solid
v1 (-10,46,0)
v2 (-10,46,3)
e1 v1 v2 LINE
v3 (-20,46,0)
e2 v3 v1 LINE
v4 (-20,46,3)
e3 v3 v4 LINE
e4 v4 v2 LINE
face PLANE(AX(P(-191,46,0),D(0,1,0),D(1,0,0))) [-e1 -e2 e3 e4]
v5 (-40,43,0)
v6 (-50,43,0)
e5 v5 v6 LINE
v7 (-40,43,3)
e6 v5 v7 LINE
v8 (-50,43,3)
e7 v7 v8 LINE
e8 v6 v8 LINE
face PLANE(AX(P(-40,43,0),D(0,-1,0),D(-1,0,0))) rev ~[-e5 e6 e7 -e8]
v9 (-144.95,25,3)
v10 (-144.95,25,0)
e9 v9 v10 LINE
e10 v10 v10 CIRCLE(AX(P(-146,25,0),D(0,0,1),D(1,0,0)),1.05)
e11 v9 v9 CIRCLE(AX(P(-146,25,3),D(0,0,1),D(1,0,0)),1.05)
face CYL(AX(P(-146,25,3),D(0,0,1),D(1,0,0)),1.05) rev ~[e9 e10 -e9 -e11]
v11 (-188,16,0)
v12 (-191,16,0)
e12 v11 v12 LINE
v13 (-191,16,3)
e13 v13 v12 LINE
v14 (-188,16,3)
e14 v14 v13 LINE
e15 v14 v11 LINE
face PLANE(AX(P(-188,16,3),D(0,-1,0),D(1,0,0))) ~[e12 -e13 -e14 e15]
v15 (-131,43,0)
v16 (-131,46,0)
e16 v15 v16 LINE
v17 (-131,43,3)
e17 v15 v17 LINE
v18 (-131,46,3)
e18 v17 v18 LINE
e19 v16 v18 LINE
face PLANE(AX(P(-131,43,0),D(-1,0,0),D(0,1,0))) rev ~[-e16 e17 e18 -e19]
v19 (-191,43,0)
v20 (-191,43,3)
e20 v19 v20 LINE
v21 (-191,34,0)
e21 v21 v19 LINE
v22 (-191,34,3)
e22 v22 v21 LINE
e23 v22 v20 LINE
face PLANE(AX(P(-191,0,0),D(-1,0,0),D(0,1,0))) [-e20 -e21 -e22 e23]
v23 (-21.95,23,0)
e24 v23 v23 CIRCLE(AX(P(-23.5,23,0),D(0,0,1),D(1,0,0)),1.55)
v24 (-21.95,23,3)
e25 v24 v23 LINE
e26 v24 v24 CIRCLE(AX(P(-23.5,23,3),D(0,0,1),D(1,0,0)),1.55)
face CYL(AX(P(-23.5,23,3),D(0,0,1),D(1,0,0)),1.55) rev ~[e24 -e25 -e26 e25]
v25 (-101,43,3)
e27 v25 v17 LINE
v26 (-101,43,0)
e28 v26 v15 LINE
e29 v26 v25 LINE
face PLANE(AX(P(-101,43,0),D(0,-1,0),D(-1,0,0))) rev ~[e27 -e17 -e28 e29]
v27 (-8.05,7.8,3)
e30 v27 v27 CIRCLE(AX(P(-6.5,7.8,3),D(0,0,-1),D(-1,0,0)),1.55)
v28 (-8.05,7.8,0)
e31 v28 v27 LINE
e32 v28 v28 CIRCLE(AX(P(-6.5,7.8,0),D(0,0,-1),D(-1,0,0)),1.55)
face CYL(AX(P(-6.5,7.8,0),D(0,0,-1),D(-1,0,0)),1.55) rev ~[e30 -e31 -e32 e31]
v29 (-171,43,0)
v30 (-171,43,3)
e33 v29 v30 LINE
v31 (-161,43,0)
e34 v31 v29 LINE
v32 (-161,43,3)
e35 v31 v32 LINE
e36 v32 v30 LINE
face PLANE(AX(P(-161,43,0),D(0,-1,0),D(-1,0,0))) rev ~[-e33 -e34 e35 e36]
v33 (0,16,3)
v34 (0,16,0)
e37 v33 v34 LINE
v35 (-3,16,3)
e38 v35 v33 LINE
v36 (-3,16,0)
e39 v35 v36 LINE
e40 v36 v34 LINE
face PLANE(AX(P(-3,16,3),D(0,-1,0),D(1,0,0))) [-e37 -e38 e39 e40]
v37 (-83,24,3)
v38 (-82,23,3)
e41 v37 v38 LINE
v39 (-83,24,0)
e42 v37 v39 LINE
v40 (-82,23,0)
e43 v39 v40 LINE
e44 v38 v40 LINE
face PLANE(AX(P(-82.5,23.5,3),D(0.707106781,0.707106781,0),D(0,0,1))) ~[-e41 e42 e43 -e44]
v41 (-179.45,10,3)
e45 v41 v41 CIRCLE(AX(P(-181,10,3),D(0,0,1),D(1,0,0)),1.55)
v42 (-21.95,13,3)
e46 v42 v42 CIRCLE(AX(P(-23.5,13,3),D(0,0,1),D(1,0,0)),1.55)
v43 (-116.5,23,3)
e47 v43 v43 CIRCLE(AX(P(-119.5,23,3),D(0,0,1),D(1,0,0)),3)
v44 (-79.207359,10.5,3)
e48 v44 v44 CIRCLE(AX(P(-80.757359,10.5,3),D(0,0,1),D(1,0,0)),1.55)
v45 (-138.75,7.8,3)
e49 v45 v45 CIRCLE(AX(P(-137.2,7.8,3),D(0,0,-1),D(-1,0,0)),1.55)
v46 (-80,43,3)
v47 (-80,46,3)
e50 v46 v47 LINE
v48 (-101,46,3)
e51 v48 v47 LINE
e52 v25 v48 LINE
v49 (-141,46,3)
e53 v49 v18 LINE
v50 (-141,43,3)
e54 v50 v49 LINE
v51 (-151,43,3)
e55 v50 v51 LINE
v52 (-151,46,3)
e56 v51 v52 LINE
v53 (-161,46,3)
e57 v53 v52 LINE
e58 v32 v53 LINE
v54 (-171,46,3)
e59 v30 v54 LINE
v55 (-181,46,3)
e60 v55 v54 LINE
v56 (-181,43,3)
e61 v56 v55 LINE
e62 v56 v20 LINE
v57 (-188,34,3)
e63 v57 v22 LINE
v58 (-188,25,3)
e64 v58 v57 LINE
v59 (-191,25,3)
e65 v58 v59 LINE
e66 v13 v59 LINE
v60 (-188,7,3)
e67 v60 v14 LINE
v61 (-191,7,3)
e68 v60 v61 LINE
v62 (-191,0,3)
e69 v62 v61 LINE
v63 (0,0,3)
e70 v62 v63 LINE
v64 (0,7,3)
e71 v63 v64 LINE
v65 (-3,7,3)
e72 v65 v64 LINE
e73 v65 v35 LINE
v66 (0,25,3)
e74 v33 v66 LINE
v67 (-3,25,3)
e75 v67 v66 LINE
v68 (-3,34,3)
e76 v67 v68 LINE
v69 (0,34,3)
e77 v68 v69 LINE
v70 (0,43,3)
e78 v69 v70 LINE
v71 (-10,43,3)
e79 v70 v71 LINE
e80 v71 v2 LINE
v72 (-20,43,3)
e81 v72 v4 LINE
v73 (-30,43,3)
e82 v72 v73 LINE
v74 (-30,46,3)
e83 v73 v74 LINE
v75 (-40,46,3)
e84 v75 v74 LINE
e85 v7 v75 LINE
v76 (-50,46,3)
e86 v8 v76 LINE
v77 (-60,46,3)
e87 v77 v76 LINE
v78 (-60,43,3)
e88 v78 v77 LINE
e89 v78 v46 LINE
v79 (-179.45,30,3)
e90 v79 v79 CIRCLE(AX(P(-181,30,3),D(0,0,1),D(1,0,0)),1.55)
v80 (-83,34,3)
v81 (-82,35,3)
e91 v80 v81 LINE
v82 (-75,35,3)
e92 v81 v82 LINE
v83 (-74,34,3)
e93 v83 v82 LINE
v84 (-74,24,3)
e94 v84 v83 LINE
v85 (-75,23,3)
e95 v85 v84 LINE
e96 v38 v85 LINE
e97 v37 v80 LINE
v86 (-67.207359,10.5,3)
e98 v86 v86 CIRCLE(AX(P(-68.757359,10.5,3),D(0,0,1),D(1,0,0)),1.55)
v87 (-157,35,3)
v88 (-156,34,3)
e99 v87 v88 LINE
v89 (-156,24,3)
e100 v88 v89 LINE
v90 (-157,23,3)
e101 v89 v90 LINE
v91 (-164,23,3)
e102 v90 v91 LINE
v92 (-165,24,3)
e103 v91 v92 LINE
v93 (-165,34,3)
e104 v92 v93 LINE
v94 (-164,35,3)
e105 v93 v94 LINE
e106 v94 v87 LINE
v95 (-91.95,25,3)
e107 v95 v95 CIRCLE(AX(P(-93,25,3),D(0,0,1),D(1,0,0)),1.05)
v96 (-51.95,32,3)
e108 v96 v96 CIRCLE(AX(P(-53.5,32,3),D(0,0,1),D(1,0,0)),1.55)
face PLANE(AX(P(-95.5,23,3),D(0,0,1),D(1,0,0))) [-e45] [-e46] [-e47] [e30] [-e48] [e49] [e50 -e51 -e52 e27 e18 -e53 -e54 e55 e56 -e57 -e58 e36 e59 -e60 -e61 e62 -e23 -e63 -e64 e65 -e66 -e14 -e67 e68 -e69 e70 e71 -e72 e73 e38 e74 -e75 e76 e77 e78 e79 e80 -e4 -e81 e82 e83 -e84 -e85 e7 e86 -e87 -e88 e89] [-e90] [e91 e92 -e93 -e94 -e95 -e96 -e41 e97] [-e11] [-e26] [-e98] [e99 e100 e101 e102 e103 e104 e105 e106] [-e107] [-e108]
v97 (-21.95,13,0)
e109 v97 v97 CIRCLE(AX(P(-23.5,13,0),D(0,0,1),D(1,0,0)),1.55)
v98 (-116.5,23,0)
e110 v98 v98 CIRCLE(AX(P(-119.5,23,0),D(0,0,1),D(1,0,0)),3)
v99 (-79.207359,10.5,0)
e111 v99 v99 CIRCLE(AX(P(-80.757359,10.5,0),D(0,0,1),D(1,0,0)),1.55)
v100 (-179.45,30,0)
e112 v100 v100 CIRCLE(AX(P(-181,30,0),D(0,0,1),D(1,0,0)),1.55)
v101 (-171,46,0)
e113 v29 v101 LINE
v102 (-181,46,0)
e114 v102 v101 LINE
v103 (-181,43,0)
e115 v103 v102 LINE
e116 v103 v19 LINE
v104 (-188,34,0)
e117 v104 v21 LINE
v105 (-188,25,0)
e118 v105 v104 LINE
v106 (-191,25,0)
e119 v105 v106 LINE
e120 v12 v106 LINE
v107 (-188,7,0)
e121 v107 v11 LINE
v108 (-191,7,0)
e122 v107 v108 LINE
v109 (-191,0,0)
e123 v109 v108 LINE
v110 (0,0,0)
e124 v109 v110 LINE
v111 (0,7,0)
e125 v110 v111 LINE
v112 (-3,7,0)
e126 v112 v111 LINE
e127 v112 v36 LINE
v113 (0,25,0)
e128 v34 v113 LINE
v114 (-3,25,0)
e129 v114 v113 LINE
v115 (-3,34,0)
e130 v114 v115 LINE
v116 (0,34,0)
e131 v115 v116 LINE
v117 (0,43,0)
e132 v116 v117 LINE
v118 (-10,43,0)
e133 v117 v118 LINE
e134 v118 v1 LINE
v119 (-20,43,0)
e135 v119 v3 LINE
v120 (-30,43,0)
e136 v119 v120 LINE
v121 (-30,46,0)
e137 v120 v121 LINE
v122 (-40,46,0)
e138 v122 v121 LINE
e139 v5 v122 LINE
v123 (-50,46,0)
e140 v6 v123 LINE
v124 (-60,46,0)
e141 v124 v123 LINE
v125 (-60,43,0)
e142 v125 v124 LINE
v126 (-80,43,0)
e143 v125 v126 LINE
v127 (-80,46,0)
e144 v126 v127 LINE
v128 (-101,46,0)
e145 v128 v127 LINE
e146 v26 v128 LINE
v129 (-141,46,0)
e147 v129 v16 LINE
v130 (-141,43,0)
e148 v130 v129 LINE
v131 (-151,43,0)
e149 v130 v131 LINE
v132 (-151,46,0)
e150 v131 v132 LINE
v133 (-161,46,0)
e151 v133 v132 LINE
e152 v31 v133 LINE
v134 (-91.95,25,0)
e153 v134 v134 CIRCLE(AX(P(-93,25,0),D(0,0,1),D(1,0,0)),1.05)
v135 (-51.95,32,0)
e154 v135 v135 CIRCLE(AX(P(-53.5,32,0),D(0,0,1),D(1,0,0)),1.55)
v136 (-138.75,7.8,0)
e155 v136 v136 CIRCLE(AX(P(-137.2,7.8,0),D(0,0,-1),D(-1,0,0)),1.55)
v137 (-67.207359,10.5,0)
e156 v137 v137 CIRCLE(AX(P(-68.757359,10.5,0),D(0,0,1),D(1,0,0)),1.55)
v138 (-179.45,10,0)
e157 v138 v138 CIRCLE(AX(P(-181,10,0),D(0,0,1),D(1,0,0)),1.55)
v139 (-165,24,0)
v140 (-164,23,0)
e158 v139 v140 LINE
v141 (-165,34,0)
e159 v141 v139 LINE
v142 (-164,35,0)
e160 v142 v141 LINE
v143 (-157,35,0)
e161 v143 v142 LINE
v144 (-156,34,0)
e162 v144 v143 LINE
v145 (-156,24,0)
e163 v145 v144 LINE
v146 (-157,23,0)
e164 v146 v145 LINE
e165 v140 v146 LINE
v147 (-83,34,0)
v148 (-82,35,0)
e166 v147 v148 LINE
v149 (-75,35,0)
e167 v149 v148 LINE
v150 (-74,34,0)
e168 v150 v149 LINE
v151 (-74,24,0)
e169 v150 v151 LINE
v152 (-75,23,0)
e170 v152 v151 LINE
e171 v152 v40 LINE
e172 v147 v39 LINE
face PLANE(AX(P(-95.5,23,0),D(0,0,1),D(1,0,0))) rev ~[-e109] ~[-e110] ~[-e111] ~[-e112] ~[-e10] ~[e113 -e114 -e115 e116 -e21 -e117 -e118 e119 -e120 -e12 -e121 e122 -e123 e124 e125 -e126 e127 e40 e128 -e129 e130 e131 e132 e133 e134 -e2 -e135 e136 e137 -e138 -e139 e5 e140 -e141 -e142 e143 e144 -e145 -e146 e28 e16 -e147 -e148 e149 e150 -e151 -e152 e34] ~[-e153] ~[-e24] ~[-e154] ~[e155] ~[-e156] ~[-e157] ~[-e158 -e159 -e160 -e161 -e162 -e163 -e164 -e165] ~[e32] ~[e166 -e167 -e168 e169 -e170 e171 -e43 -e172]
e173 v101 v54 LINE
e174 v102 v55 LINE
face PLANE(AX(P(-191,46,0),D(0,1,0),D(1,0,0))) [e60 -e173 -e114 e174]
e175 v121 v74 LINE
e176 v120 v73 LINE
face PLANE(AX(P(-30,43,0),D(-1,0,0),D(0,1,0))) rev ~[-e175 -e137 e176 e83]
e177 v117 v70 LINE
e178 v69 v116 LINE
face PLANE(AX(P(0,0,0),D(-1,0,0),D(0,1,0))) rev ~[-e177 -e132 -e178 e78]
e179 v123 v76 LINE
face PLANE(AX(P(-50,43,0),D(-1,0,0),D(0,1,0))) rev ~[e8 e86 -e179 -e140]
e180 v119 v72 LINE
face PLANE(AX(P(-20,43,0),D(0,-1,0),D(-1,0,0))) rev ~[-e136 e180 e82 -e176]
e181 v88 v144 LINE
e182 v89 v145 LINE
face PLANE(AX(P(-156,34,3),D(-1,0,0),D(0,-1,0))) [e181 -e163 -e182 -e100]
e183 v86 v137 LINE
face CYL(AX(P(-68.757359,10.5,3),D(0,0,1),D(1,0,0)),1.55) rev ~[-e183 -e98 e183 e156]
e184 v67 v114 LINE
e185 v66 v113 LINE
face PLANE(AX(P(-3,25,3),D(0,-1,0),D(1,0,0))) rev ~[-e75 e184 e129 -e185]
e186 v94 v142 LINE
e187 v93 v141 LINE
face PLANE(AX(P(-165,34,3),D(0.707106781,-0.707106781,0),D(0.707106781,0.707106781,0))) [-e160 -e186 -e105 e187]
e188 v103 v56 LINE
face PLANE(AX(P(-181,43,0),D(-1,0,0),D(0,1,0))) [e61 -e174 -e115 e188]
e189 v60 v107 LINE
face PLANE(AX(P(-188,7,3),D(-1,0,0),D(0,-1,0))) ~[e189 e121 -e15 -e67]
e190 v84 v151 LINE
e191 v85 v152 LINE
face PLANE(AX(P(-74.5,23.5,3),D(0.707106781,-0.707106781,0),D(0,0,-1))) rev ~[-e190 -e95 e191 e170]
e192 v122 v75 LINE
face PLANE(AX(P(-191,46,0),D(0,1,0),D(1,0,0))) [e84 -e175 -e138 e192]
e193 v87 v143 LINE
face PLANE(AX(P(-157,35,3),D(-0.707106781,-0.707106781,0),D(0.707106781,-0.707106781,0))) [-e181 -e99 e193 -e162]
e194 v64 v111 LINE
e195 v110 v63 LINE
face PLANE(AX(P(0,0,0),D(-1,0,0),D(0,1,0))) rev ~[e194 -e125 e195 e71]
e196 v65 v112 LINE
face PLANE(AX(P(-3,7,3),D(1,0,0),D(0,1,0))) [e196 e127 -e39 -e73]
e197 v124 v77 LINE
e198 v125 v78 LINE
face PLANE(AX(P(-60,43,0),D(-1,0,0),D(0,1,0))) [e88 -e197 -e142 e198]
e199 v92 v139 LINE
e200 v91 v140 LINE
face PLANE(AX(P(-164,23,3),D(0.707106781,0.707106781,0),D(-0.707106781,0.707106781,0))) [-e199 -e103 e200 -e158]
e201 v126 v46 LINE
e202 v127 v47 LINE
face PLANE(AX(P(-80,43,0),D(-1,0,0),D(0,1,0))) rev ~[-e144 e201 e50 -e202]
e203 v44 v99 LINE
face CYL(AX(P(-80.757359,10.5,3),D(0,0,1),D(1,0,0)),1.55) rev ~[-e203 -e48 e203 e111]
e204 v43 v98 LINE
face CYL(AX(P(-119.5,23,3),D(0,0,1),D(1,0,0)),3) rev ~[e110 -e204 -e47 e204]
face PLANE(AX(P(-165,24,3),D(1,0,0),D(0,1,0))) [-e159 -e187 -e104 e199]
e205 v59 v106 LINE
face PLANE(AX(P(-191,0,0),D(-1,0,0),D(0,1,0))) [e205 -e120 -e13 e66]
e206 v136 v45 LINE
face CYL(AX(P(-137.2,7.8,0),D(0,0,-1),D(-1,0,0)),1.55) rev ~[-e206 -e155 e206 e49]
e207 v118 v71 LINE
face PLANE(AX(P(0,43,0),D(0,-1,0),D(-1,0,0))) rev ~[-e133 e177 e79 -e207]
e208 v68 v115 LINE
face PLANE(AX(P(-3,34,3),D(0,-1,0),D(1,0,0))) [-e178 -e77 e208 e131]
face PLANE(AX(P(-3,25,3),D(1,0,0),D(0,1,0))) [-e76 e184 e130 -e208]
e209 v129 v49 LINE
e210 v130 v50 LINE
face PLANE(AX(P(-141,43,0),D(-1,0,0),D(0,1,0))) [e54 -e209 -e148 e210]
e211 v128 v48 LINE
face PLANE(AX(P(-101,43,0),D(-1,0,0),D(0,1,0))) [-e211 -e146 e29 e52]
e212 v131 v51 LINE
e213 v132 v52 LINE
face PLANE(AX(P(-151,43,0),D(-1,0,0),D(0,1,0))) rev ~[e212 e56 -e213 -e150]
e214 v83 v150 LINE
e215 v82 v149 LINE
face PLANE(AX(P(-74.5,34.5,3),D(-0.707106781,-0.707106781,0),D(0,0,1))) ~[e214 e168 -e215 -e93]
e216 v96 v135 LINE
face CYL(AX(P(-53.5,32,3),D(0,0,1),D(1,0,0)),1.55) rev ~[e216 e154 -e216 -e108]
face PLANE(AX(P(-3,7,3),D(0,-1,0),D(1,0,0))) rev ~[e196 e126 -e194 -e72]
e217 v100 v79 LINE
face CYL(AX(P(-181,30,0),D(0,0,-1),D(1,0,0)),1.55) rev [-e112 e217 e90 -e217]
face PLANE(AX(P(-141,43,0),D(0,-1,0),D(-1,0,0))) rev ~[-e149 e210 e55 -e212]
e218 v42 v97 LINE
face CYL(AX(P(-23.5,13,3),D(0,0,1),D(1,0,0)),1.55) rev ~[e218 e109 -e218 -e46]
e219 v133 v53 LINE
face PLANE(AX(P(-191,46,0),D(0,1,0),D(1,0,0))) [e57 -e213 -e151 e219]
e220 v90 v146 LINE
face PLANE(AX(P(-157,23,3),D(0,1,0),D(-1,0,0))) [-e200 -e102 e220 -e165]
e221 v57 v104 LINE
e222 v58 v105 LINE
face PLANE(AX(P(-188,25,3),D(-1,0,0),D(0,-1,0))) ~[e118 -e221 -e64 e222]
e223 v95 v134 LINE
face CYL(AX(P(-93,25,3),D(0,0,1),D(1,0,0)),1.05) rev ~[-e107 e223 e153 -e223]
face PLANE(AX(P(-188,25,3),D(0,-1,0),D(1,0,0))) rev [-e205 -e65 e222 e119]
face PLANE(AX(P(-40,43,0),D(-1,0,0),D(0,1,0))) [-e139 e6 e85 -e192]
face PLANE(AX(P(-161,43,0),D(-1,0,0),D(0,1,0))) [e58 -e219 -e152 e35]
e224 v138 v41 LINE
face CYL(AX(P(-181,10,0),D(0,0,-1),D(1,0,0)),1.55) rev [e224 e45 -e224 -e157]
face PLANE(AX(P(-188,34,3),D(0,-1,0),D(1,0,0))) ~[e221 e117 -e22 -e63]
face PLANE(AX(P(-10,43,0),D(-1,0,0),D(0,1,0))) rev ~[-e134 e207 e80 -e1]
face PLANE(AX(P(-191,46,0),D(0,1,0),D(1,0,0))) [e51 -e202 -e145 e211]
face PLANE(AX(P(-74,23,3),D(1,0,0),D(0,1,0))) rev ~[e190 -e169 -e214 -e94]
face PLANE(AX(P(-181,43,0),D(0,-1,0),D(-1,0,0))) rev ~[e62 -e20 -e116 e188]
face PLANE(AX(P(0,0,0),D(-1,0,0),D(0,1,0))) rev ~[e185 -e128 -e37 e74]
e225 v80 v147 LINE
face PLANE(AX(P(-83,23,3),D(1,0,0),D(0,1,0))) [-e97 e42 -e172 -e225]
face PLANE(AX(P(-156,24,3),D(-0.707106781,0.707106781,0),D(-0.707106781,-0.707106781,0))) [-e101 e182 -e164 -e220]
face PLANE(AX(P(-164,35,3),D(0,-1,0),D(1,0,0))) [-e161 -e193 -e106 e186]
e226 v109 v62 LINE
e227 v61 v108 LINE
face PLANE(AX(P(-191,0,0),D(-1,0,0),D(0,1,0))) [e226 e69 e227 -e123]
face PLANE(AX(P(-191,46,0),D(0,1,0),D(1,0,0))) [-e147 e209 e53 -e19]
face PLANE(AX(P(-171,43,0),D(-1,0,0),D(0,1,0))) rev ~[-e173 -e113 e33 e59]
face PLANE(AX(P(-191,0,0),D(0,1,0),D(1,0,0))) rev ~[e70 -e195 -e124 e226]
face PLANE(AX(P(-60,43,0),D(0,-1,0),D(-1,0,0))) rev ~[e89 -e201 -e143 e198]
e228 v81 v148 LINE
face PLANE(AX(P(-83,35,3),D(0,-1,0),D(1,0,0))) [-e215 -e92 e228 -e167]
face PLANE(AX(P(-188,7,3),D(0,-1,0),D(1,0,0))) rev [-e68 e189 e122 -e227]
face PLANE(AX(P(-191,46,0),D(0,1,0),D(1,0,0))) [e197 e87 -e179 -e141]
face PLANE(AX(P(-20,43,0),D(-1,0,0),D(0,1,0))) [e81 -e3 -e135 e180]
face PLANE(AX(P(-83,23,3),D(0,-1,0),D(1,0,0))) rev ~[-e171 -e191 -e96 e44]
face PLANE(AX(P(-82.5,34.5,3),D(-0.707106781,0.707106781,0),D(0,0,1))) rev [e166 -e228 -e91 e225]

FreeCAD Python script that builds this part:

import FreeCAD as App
import Part
import Sketcher
Q = App.Units.Quantity


def edges_at(feature, points):
    """Names of the edges that pass closest to the given points."""
    edges = feature.Shape.Edges
    near = lambda p: min(range(len(edges)), key=lambda i: edges[i].distToShape(Part.Vertex(*p))[0])
    return sorted({f"Edge{near(p) + 1}" for p in points})

doc = App.newDocument("Part")
body = doc.addObject("PartDesign::Body", "Body")

sketch1 = doc.addObject("Sketcher::SketchObject", "Sketch")
body.addObject(sketch1)
sketch1.AttachmentSupport = (doc.XY_Plane, [""])
sketch1.MapMode = "FlatFace"
sketch1.addGeometry(Part.LineSegment(App.Vector(-191, 46, 0), App.Vector(-191, 0, 0)), False)
sketch1.addGeometry(Part.LineSegment(App.Vector(-191, 0, 0), App.Vector(0, 0, 0)), False)
sketch1.addGeometry(Part.LineSegment(App.Vector(0, 0, 0), App.Vector(0, 46, 0)), False)
sketch1.addGeometry(Part.LineSegment(App.Vector(0, 46, 0), App.Vector(-191, 46, 0)), False)
sketch1.addGeometry(Part.Circle(App.Vector(-181, 10, 0), App.Vector(0, 0, 1), 1.5), False)
sketch1.addGeometry(Part.Circle(App.Vector(-181, 30, 0), App.Vector(0, 0, 1), 1.5), False)
sketch1.addConstraint(Sketcher.Constraint("Coincident", 0, 2, 1, 1))
sketch1.addConstraint(Sketcher.Constraint("Coincident", 1, 2, 2, 1))
sketch1.addConstraint(Sketcher.Constraint("Coincident", 2, 2, 3, 1))
sketch1.addConstraint(Sketcher.Constraint("Coincident", 3, 2, 0, 1))
sketch1.addConstraint(Sketcher.Constraint("Vertical", 0))
sketch1.addConstraint(Sketcher.Constraint("Horizontal", 1))
sketch1.addConstraint(Sketcher.Constraint("Vertical", 2))
sketch1.addConstraint(Sketcher.Constraint("Horizontal", 3))
sketch1.addConstraint(Sketcher.Constraint("Coincident", 1, 2, -1, 1))
sketch1.addConstraint(Sketcher.Constraint("Equal", 4, 5))
sketch1.addConstraint(Sketcher.Constraint("Vertical", 4, 3, 5, 3))
sketch1.addConstraint(Sketcher.Constraint("Diameter", 4, Q("3.1 mm")))
sketch1.addConstraint(Sketcher.Constraint("DistanceX", 1, 1, 1, 2, Q("191 mm")))
sketch1.addConstraint(Sketcher.Constraint("DistanceY", 0, 2, 0, 1, Q("46 mm")))
sketch1.addConstraint(Sketcher.Constraint("DistanceX", 4, 3, -1, 1, Q("181 mm")))
sketch1.addConstraint(Sketcher.Constraint("DistanceY", -1, 1, 4, 3, Q("10 mm")))
sketch1.addConstraint(Sketcher.Constraint("DistanceY", -1, 1, 5, 3, Q("30 mm")))
pad1 = doc.addObject("PartDesign::Pad", "Pad")
body.addObject(pad1)
pad1.Profile = sketch1
pad1.Length = 3

sketch2 = doc.addObject("Sketcher::SketchObject", "Sketch001")
body.addObject(sketch2)
sketch2.AttachmentSupport = (doc.XY_Plane, [""])
sketch2.MapMode = "FlatFace"
sketch2.addGeometry(Part.LineSegment(App.Vector(-40, 46, 0), App.Vector(-40, 43, 0)), False)
sketch2.addGeometry(Part.LineSegment(App.Vector(-40, 43, 0), App.Vector(-50, 43, 0)), False)
sketch2.addGeometry(Part.LineSegment(App.Vector(-50, 43, 0), App.Vector(-50, 46, 0)), False)
sketch2.addGeometry(Part.LineSegment(App.Vector(-50, 46, 0), App.Vector(-40, 46, 0)), False)
sketch2.addConstraint(Sketcher.Constraint("Coincident", 0, 2, 1, 1))
sketch2.addConstraint(Sketcher.Constraint("Coincident", 1, 2, 2, 1))
sketch2.addConstraint(Sketcher.Constraint("Coincident", 2, 2, 3, 1))
sketch2.addConstraint(Sketcher.Constraint("Coincident", 3, 2, 0, 1))
sketch2.addConstraint(Sketcher.Constraint("Vertical", 0))
sketch2.addConstraint(Sketcher.Constraint("Horizontal", 1))
sketch2.addConstraint(Sketcher.Constraint("Vertical", 2))
sketch2.addConstraint(Sketcher.Constraint("Horizontal", 3))
sketch2.addConstraint(Sketcher.Constraint("DistanceX", 1, 2, 1, 1, Q("10 mm")))
sketch2.addConstraint(Sketcher.Constraint("DistanceY", 0, 2, 0, 1, Q("3 mm")))
sketch2.addConstraint(Sketcher.Constraint("DistanceX", 0, 2, -1, 1, Q("40 mm")))
sketch2.addConstraint(Sketcher.Constraint("DistanceY", -1, 1, 0, 2, Q("43 mm")))
pocket1 = doc.addObject("PartDesign::Pocket", "Pocket")
body.addObject(pocket1)
pocket1.Profile = sketch2
pocket1.Type = "UpToFirst"
pocket1.Reversed = True

sketch3 = doc.addObject("Sketcher::SketchObject", "Sketch002")
body.addObject(sketch3)
sketch3.AttachmentSupport = (doc.XY_Plane, [""])
sketch3.MapMode = "FlatFace"
sketch3.addGeometry(Part.LineSegment(App.Vector(-20, 46, 0), App.Vector(-20, 43, 0)), False)
sketch3.addGeometry(Part.LineSegment(App.Vector(-20, 43, 0), App.Vector(-30, 43, 0)), False)
sketch3.addGeometry(Part.LineSegment(App.Vector(-30, 43, 0), App.Vector(-30, 46, 0)), False)
sketch3.addGeometry(Part.LineSegment(App.Vector(-30, 46, 0), App.Vector(-20, 46, 0)), False)
sketch3.addConstraint(Sketcher.Constraint("Coincident", 0, 2, 1, 1))
sketch3.addConstraint(Sketcher.Constraint("Coincident", 1, 2, 2, 1))
sketch3.addConstraint(Sketcher.Constraint("Coincident", 2, 2, 3, 1))
sketch3.addConstraint(Sketcher.Constraint("Coincident", 3, 2, 0, 1))
sketch3.addConstraint(Sketcher.Constraint("Vertical", 0))
sketch3.addConstraint(Sketcher.Constraint("Horizontal", 1))
sketch3.addConstraint(Sketcher.Constraint("Vertical", 2))
sketch3.addConstraint(Sketcher.Constraint("Horizontal", 3))
sketch3.addConstraint(Sketcher.Constraint("DistanceX", 1, 2, 1, 1, Q("10 mm")))
sketch3.addConstraint(Sketcher.Constraint("DistanceY", 0, 2, 0, 1, Q("3 mm")))
sketch3.addConstraint(Sketcher.Constraint("DistanceX", 0, 2, -1, 1, Q("20 mm")))
sketch3.addConstraint(Sketcher.Constraint("DistanceY", -1, 1, 0, 2, Q("43 mm")))
pocket2 = doc.addObject("PartDesign::Pocket", "Pocket001")
body.addObject(pocket2)
pocket2.Profile = sketch3
pocket2.Type = "UpToFirst"
pocket2.Reversed = True

sketch4 = doc.addObject("Sketcher::SketchObject", "Sketch003")
body.addObject(sketch4)
sketch4.AttachmentSupport = (doc.XY_Plane, [""])
sketch4.MapMode = "FlatFace"
sketch4.addGeometry(Part.LineSegment(App.Vector(0, 46, 0), App.Vector(0, 43, 0)), False)
sketch4.addGeometry(Part.LineSegment(App.Vector(0, 43, 0), App.Vector(-10, 43, 0)), False)
sketch4.addGeometry(Part.LineSegment(App.Vector(-10, 43, 0), App.Vector(-10, 46, 0)), False)
sketch4.addGeometry(Part.LineSegment(App.Vector(-10, 46, 0), App.Vector(0, 46, 0)), False)
sketch4.addConstraint(Sketcher.Constraint("Coincident", 0, 2, 1, 1))
sketch4.addConstraint(Sketcher.Constraint("Coincident", 1, 2, 2, 1))
sketch4.addConstraint(Sketcher.Constraint("Coincident", 2, 2, 3, 1))
sketch4.addConstraint(Sketcher.Constraint("Coincident", 3, 2, 0, 1))
sketch4.addConstraint(Sketcher.Constraint("Vertical", 0))
sketch4.addConstraint(Sketcher.Constraint("Horizontal", 1))
sketch4.addConstraint(Sketcher.Constraint("Vertical", 2))
sketch4.addConstraint(Sketcher.Constraint("Horizontal", 3))
sketch4.addConstraint(Sketcher.Constraint("PointOnObject", 0, 2, -2))
sketch4.addConstraint(Sketcher.Constraint("DistanceX", 1, 2, 1, 1, Q("10 mm")))
sketch4.addConstraint(Sketcher.Constraint("DistanceY", 0, 2, 0, 1, Q("3 mm")))
sketch4.addConstraint(Sketcher.Constraint("DistanceY", -1, 1, 0, 2, Q("43 mm")))
pocket3 = doc.addObject("PartDesign::Pocket", "Pocket002")
body.addObject(pocket3)
pocket3.Profile = sketch4
pocket3.Type = "UpToFirst"
pocket3.Reversed = True

sketch5 = doc.addObject("Sketcher::SketchObject", "Sketch004")
body.addObject(sketch5)
sketch5.AttachmentSupport = (doc.XY_Plane, [""])
sketch5.MapMode = "FlatFace"
sketch5.addGeometry(Part.LineSegment(App.Vector(-161, 46, 0), App.Vector(-161, 43, 0)), False)
sketch5.addGeometry(Part.LineSegment(App.Vector(-161, 43, 0), App.Vector(-171, 43, 0)), False)
sketch5.addGeometry(Part.LineSegment(App.Vector(-171, 43, 0), App.Vector(-171, 46, 0)), False)
sketch5.addGeometry(Part.LineSegment(App.Vector(-171, 46, 0), App.Vector(-161, 46, 0)), False)
sketch5.addConstraint(Sketcher.Constraint("Coincident", 0, 2, 1, 1))
sketch5.addConstraint(Sketcher.Constraint("Coincident", 1, 2, 2, 1))
sketch5.addConstraint(Sketcher.Constraint("Coincident", 2, 2, 3, 1))
sketch5.addConstraint(Sketcher.Constraint("Coincident", 3, 2, 0, 1))
sketch5.addConstraint(Sketcher.Constraint("Vertical", 0))
sketch5.addConstraint(Sketcher.Constraint("Horizontal", 1))
sketch5.addConstraint(Sketcher.Constraint("Vertical", 2))
sketch5.addConstraint(Sketcher.Constraint("Horizontal", 3))
sketch5.addConstraint(Sketcher.Constraint("DistanceX", 1, 2, 1, 1, Q("10 mm")))
sketch5.addConstraint(Sketcher.Constraint("DistanceY", 0, 2, 0, 1, Q("3 mm")))
sketch5.addConstraint(Sketcher.Constraint("DistanceX", 0, 2, -1, 1, Q("161 mm")))
sketch5.addConstraint(Sketcher.Constraint("DistanceY", -1, 1, 0, 2, Q("43 mm")))
pocket4 = doc.addObject("PartDesign::Pocket", "Pocket003")
body.addObject(pocket4)
pocket4.Profile = sketch5
pocket4.Type = "UpToFirst"
pocket4.Reversed = True

sketch6 = doc.addObject("Sketcher::SketchObject", "Sketch005")
body.addObject(sketch6)
sketch6.AttachmentSupport = (doc.XY_Plane, [""])
sketch6.MapMode = "FlatFace"
sketch6.addGeometry(Part.LineSegment(App.Vector(-141, 46, 0), App.Vector(-141, 43, 0)), False)
sketch6.addGeometry(Part.LineSegment(App.Vector(-141, 43, 0), App.Vector(-151, 43, 0)), False)
sketch6.addGeometry(Part.LineSegment(App.Vector(-151, 43, 0), App.Vector(-151, 46, 0)), False)
sketch6.addGeometry(Part.LineSegment(App.Vector(-151, 46, 0), App.Vector(-141, 46, 0)), False)
sketch6.addConstraint(Sketcher.Constraint("Coincident", 0, 2, 1, 1))
sketch6.addConstraint(Sketcher.Constraint("Coincident", 1, 2, 2, 1))
sketch6.addConstraint(Sketcher.Constraint("Coincident", 2, 2, 3, 1))
sketch6.addConstraint(Sketcher.Constraint("Coincident", 3, 2, 0, 1))
sketch6.addConstraint(Sketcher.Constraint("Vertical", 0))
sketch6.addConstraint(Sketcher.Constraint("Horizontal", 1))
sketch6.addConstraint(Sketcher.Constraint("Vertical", 2))
sketch6.addConstraint(Sketcher.Constraint("Horizontal", 3))
sketch6.addConstraint(Sketcher.Constraint("DistanceX", 1, 2, 1, 1, Q("10 mm")))
sketch6.addConstraint(Sketcher.Constraint("DistanceY", 0, 2, 0, 1, Q("3 mm")))
sketch6.addConstraint(Sketcher.Constraint("DistanceX", 0, 2, -1, 1, Q("141 mm")))
sketch6.addConstraint(Sketcher.Constraint("DistanceY", -1, 1, 0, 2, Q("43 mm")))
pocket5 = doc.addObject("PartDesign::Pocket", "Pocket004")
body.addObject(pocket5)
pocket5.Profile = sketch6
pocket5.Type = "UpToFirst"
pocket5.Reversed = True

sketch7 = doc.addObject("Sketcher::SketchObject", "Sketch006")
body.addObject(sketch7)
sketch7.AttachmentSupport = (doc.XY_Plane, [""])
sketch7.MapMode = "FlatFace"
sketch7.addGeometry(Part.LineSegment(App.Vector(-101, 46, 0), App.Vector(-101, 43, 0)), False)
sketch7.addGeometry(Part.LineSegment(App.Vector(-101, 43, 0), App.Vector(-131, 43, 0)), False)
sketch7.addGeometry(Part.LineSegment(App.Vector(-131, 43, 0), App.Vector(-131, 46, 0)), False)
sketch7.addGeometry(Part.LineSegment(App.Vector(-131, 46, 0), App.Vector(-101, 46, 0)), False)
sketch7.addConstraint(Sketcher.Constraint("Coincident", 0, 2, 1, 1))
sketch7.addConstraint(Sketcher.Constraint("Coincident", 1, 2, 2, 1))
sketch7.addConstraint(Sketcher.Constraint("Coincident", 2, 2, 3, 1))
sketch7.addConstraint(Sketcher.Constraint("Coincident", 3, 2, 0, 1))
sketch7.addConstraint(Sketcher.Constraint("Vertical", 0))
sketch7.addConstraint(Sketcher.Constraint("Horizontal", 1))
sketch7.addConstraint(Sketcher.Constraint("Vertical", 2))
sketch7.addConstraint(Sketcher.Constraint("Horizontal", 3))
sketch7.addConstraint(Sketcher.Constraint("DistanceX", 1, 2, 1, 1, Q("30 mm")))
sketch7.addConstraint(Sketcher.Constraint("DistanceY", 0, 2, 0, 1, Q("3 mm")))
sketch7.addConstraint(Sketcher.Constraint("DistanceX", 0, 2, -1, 1, Q("101 mm")))
sketch7.addConstraint(Sketcher.Constraint("DistanceY", -1, 1, 0, 2, Q("43 mm")))
pocket6 = doc.addObject("PartDesign::Pocket", "Pocket005")
body.addObject(pocket6)
pocket6.Profile = sketch7
pocket6.Type = "UpToFirst"
pocket6.Reversed = True

sketch8 = doc.addObject("Sketcher::SketchObject", "Sketch007")
body.addObject(sketch8)
sketch8.AttachmentSupport = (doc.XY_Plane, [""])
sketch8.MapMode = "FlatFace"
sketch8.addGeometry(Part.LineSegment(App.Vector(-60, 46, 0), App.Vector(-60, 43, 0)), False)
sketch8.addGeometry(Part.LineSegment(App.Vector(-60, 43, 0), App.Vector(-80, 43, 0)), False)
sketch8.addGeometry(Part.LineSegment(App.Vector(-80, 43, 0), App.Vector(-80, 46, 0)), False)
sketch8.addGeometry(Part.LineSegment(App.Vector(-80, 46, 0), App.Vector(-60, 46, 0)), False)
sketch8.addConstraint(Sketcher.Constraint("Coincident", 0, 2, 1, 1))
sketch8.addConstraint(Sketcher.Constraint("Coincident", 1, 2, 2, 1))
sketch8.addConstraint(Sketcher.Constraint("Coincident", 2, 2, 3, 1))
sketch8.addConstraint(Sketcher.Constraint("Coincident", 3, 2, 0, 1))
sketch8.addConstraint(Sketcher.Constraint("Vertical", 0))
sketch8.addConstraint(Sketcher.Constraint("Horizontal", 1))
sketch8.addConstraint(Sketcher.Constraint("Vertical", 2))
sketch8.addConstraint(Sketcher.Constraint("Horizontal", 3))
sketch8.addConstraint(Sketcher.Constraint("DistanceX", 1, 2, 1, 1, Q("20 mm")))
sketch8.addConstraint(Sketcher.Constraint("DistanceY", 0, 2, 0, 1, Q("3 mm")))
sketch8.addConstraint(Sketcher.Constraint("DistanceX", 0, 2, -1, 1, Q("60 mm")))
sketch8.addConstraint(Sketcher.Constraint("DistanceY", -1, 1, 0, 2, Q("43 mm")))
pocket7 = doc.addObject("PartDesign::Pocket", "Pocket006")
body.addObject(pocket7)
pocket7.Profile = sketch8
pocket7.Type = "UpToFirst"
pocket7.Reversed = True

sketch9 = doc.addObject("Sketcher::SketchObject", "Sketch008")
body.addObject(sketch9)
sketch9.AttachmentSupport = (doc.XY_Plane, [""])
sketch9.MapMode = "FlatFace"
sketch9.addGeometry(Part.LineSegment(App.Vector(-181, 46, 0), App.Vector(-181, 43, 0)), False)
sketch9.addGeometry(Part.LineSegment(App.Vector(-181, 43, 0), App.Vector(-191, 43, 0)), False)
sketch9.addGeometry(Part.LineSegment(App.Vector(-191, 43, 0), App.Vector(-191, 46, 0)), False)
sketch9.addGeometry(Part.LineSegment(App.Vector(-191, 46, 0), App.Vector(-181, 46, 0)), False)
sketch9.addConstraint(Sketcher.Constraint("Coincident", 0, 2, 1, 1))
sketch9.addConstraint(Sketcher.Constraint("Coincident", 1, 2, 2, 1))
sketch9.addConstraint(Sketcher.Constraint("Coincident", 2, 2, 3, 1))
sketch9.addConstraint(Sketcher.Constraint("Coincident", 3, 2, 0, 1))
sketch9.addConstraint(Sketcher.Constraint("Vertical", 0))
sketch9.addConstraint(Sketcher.Constraint("Horizontal", 1))
sketch9.addConstraint(Sketcher.Constraint("Vertical", 2))
sketch9.addConstraint(Sketcher.Constraint("Horizontal", 3))
sketch9.addConstraint(Sketcher.Constraint("DistanceX", 1, 2, 1, 1, Q("10 mm")))
sketch9.addConstraint(Sketcher.Constraint("DistanceY", 0, 2, 0, 1, Q("3 mm")))
sketch9.addConstraint(Sketcher.Constraint("DistanceX", 0, 2, -1, 1, Q("181 mm")))
sketch9.addConstraint(Sketcher.Constraint("DistanceY", -1, 1, 0, 2, Q("43 mm")))
pocket8 = doc.addObject("PartDesign::Pocket", "Pocket007")
body.addObject(pocket8)
pocket8.Profile = sketch9
pocket8.Type = "UpToFirst"
pocket8.Reversed = True

sketch10 = doc.addObject("Sketcher::SketchObject", "Sketch009")
body.addObject(sketch10)
sketch10.AttachmentSupport = (doc.XY_Plane, [""])
sketch10.MapMode = "FlatFace"
sketch10.AttachmentOffset = App.Placement(App.Vector(0, 0, 3), App.Rotation())
sketch10.addGeometry(Part.LineSegment(App.Vector(-3, 34, 0), App.Vector(-3, 25, 0)), False)
sketch10.addGeometry(Part.LineSegment(App.Vector(-3, 25, 0), App.Vector(0, 25, 0)), False)
sketch10.addGeometry(Part.LineSegment(App.Vector(0, 25, 0), App.Vector(0, 34, 0)), False)
sketch10.addGeometry(Part.LineSegment(App.Vector(0, 34, 0), App.Vector(-3, 34, 0)), False)
sketch10.addGeometry(Part.LineSegment(App.Vector(-3, 16, 0), App.Vector(-3, 7, 0)), False)
sketch10.addGeometry(Part.LineSegment(App.Vector(-3, 7, 0), App.Vector(0, 7, 0)), False)
sketch10.addGeometry(Part.LineSegment(App.Vector(0, 7, 0), App.Vector(0, 16, 0)), False)
sketch10.addGeometry(Part.LineSegment(App.Vector(0, 16, 0), App.Vector(-3, 16, 0)), False)
sketch10.addConstraint(Sketcher.Constraint("Coincident", 0, 2, 1, 1))
sketch10.addConstraint(Sketcher.Constraint("Coincident", 1, 2, 2, 1))
sketch10.addConstraint(Sketcher.Constraint("Coincident", 2, 2, 3, 1))
sketch10.addConstraint(Sketcher.Constraint("Coincident", 3, 2, 0, 1))
sketch10.addConstraint(Sketcher.Constraint("Coincident", 4, 2, 5, 1))
sketch10.addConstraint(Sketcher.Constraint("Coincident", 5, 2, 6, 1))
sketch10.addConstraint(Sketcher.Constraint("Coincident", 6, 2, 7, 1))
sketch10.addConstraint(Sketcher.Constraint("Coincident", 7, 2, 4, 1))
sketch10.addConstraint(Sketcher.Constraint("Vertical", 0))
sketch10.addConstraint(Sketcher.Constraint("Horizontal", 1))
sketch10.addConstraint(Sketcher.Constraint("Vertical", 2))
sketch10.addConstraint(Sketcher.Constraint("Horizontal", 3))
sketch10.addConstraint(Sketcher.Constraint("Vertical", 4))
sketch10.addConstraint(Sketcher.Constraint("Horizontal", 5))
sketch10.addConstraint(Sketcher.Constraint("Vertical", 6))
sketch10.addConstraint(Sketcher.Constraint("Horizontal", 7))
sketch10.addConstraint(Sketcher.Constraint("PointOnObject", 1, 2, -2))
sketch10.addConstraint(Sketcher.Constraint("PointOnObject", 5, 2, -2))
sketch10.addConstraint(Sketcher.Constraint("Vertical", 3, 2, 4, 2))
sketch10.addConstraint(Sketcher.Constraint("Equal", 2, 4))
sketch10.addConstraint(Sketcher.Constraint("DistanceX", 1, 1, 1, 2, Q("3 mm")))
sketch10.addConstraint(Sketcher.Constraint("DistanceY", 0, 2, 0, 1, Q("9 mm")))
sketch10.addConstraint(Sketcher.Constraint("DistanceY", -1, 1, 0, 2, Q("25 mm")))
sketch10.addConstraint(Sketcher.Constraint("DistanceY", -1, 1, 4, 2, Q("7 mm")))
pocket9 = doc.addObject("PartDesign::Pocket", "Pocket008")
body.addObject(pocket9)
pocket9.Profile = sketch10
pocket9.Length = 3
doc.recompute()

datumplane = doc.addObject("PartDesign::Plane", "DatumPlane")
body.addObject(datumplane)
datumplane.AttachmentSupport = (doc.YZ_Plane, [""])
datumplane.MapMode = "FlatFace"
datumplane.AttachmentOffset = App.Placement(App.Vector(0, 0, -95.5), App.Rotation())
mirrored = doc.addObject("PartDesign::Mirrored", "Mirrored")
body.addObject(mirrored)
mirrored.Originals = [pocket9]
mirrored.MirrorPlane = (datumplane, [""])
body.Tip = mirrored

sketch11 = doc.addObject("Sketcher::SketchObject", "Sketch010")
body.addObject(sketch11)
sketch11.AttachmentSupport = (doc.XY_Plane, [""])
sketch11.MapMode = "FlatFace"
sketch11.AttachmentOffset = App.Placement(App.Vector(0, 0, 3), App.Rotation())
sketch11.addGeometry(Part.Circle(App.Vector(-119.5, 23, 0), App.Vector(0, 0, 1), 3), False)
sketch11.addConstraint(Sketcher.Constraint("Diameter", 0, Q("6 mm")))
sketch11.addConstraint(Sketcher.Constraint("DistanceY", -1, 1, 0, 3, Q("23 mm")))
sketch11.addConstraint(Sketcher.Constraint("DistanceX", 0, 3, -1, 1, Q("119.5 mm")))
pocket10 = doc.addObject("PartDesign::Pocket", "Pocket009")
body.addObject(pocket10)
pocket10.Profile = sketch11
pocket10.Type = "UpToFirst"

sketch12 = doc.addObject("Sketcher::SketchObject", "Sketch011")
body.addObject(sketch12)
sketch12.AttachmentSupport = (doc.XY_Plane, [""])
sketch12.MapMode = "FlatFace"
sketch12.AttachmentOffset = App.Placement(App.Vector(0, 0, 3), App.Rotation())
sketch12.addGeometry(Part.Circle(App.Vector(-53.5, 32, 0), App.Vector(0, 0, 1), 1.6), False)
sketch12.addConstraint(Sketcher.Constraint("Diameter", 0, Q("3.1 mm")))
sketch12.addConstraint(Sketcher.Constraint("DistanceY", -1, 1, 0, 3, Q("32 mm")))
sketch12.addConstraint(Sketcher.Constraint("DistanceX", 0, 3, -1, 1, Q("53.5 mm")))
pocket11 = doc.addObject("PartDesign::Pocket", "Pocket010")
body.addObject(pocket11)
pocket11.Profile = sketch12
pocket11.Type = "UpToFirst"

sketch13 = doc.addObject("Sketcher::SketchObject", "Sketch012")
body.addObject(sketch13)
sketch13.AttachmentSupport = (doc.XY_Plane, [""])
sketch13.MapMode = "FlatFace"
sketch13.AttachmentOffset = App.Placement(App.Vector(0, 0, 3), App.Rotation())
sketch13.addGeometry(Part.Circle(App.Vector(-68.8, 10.5, 0), App.Vector(0, 0, 1), 1.6), False)
sketch13.addConstraint(Sketcher.Constraint("Diameter", 0, Q("3.1 mm")))
sketch13.addConstraint(Sketcher.Constraint("DistanceY", -1, 1, 0, 3, Q("10.5 mm")))
sketch13.addConstraint(Sketcher.Constraint("DistanceX", 0, 3, -1, 1, Q("68.757359 mm")))
pocket12 = doc.addObject("PartDesign::Pocket", "Pocket011")
body.addObject(pocket12)
pocket12.Profile = sketch13
pocket12.Type = "UpToFirst"

sketch14 = doc.addObject("Sketcher::SketchObject", "Sketch013")
body.addObject(sketch14)
sketch14.AttachmentSupport = (doc.XY_Plane, [""])
sketch14.MapMode = "FlatFace"
sketch14.AttachmentOffset = App.Placement(App.Vector(0, 0, 3), App.Rotation())
sketch14.addGeometry(Part.Circle(App.Vector(-80.8, 10.5, 0), App.Vector(0, 0, 1), 1.6), False)
sketch14.addConstraint(Sketcher.Constraint("Diameter", 0, Q("3.1 mm")))
sketch14.addConstraint(Sketcher.Constraint("DistanceY", -1, 1, 0, 3, Q("10.5 mm")))
sketch14.addConstraint(Sketcher.Constraint("DistanceX", 0, 3, -1, 1, Q("80.757359 mm")))
pocket13 = doc.addObject("PartDesign::Pocket", "Pocket012")
body.addObject(pocket13)
pocket13.Profile = sketch14
pocket13.Type = "UpToFirst"

sketch15 = doc.addObject("Sketcher::SketchObject", "Sketch014")
body.addObject(sketch15)
sketch15.AttachmentSupport = (doc.XY_Plane, [""])
sketch15.MapMode = "FlatFace"
sketch15.AttachmentOffset = App.Placement(App.Vector(0, 0, 3), App.Rotation())
sketch15.addGeometry(Part.Circle(App.Vector(-23.5, 23, 0), App.Vector(0, 0, 1), 1.6), False)
sketch15.addConstraint(Sketcher.Constraint("Diameter", 0, Q("3.1 mm")))
sketch15.addConstraint(Sketcher.Constraint("DistanceY", -1, 1, 0, 3, Q("23 mm")))
sketch15.addConstraint(Sketcher.Constraint("DistanceX", 0, 3, -1, 1, Q("23.5 mm")))
pocket14 = doc.addObject("PartDesign::Pocket", "Pocket013")
body.addObject(pocket14)
pocket14.Profile = sketch15
pocket14.Type = "UpToFirst"

sketch16 = doc.addObject("Sketcher::SketchObject", "Sketch015")
body.addObject(sketch16)
sketch16.AttachmentSupport = (doc.XY_Plane, [""])
sketch16.MapMode = "FlatFace"
sketch16.AttachmentOffset = App.Placement(App.Vector(0, 0, 3), App.Rotation())
sketch16.addGeometry(Part.Circle(App.Vector(-23.5, 13, 0), App.Vector(0, 0, 1), 1.6), False)
sketch16.addConstraint(Sketcher.Constraint("Diameter", 0, Q("3.1 mm")))
sketch16.addConstraint(Sketcher.Constraint("DistanceY", -1, 1, 0, 3, Q("13 mm")))
sketch16.addConstraint(Sketcher.Constraint("DistanceX", 0, 3, -1, 1, Q("23.5 mm")))
pocket15 = doc.addObject("PartDesign::Pocket", "Pocket014")
body.addObject(pocket15)
pocket15.Profile = sketch16
pocket15.Type = "UpToFirst"

sketch17 = doc.addObject("Sketcher::SketchObject", "Sketch016")
body.addObject(sketch17)
sketch17.AttachmentSupport = (doc.XY_Plane, [""])
sketch17.MapMode = "FlatFace"
sketch17.addGeometry(Part.Circle(App.Vector(-137.2, 7.8, 0), App.Vector(0, 0, 1), 1.6), False)
sketch17.addConstraint(Sketcher.Constraint("Diameter", 0, Q("3.1 mm")))
sketch17.addConstraint(Sketcher.Constraint("DistanceX", 0, 3, -1, 1, Q("137.2 mm")))
sketch17.addConstraint(Sketcher.Constraint("DistanceY", -1, 1, 0, 3, Q("7.8 mm")))
pocket16 = doc.addObject("PartDesign::Pocket", "Pocket015")
body.addObject(pocket16)
pocket16.Profile = sketch17
pocket16.Type = "UpToFirst"
pocket16.Reversed = True

sketch18 = doc.addObject("Sketcher::SketchObject", "Sketch017")
body.addObject(sketch18)
sketch18.AttachmentSupport = (doc.XY_Plane, [""])
sketch18.MapMode = "FlatFace"
sketch18.addGeometry(Part.Circle(App.Vector(-6.5, 7.8, 0), App.Vector(0, 0, 1), 1.6), False)
sketch18.addConstraint(Sketcher.Constraint("Diameter", 0, Q("3.1 mm")))
sketch18.addConstraint(Sketcher.Constraint("DistanceX", 0, 3, -1, 1, Q("6.5 mm")))
sketch18.addConstraint(Sketcher.Constraint("DistanceY", -1, 1, 0, 3, Q("7.8 mm")))
pocket17 = doc.addObject("PartDesign::Pocket", "Pocket016")
body.addObject(pocket17)
pocket17.Profile = sketch18
pocket17.Type = "UpToFirst"
pocket17.Reversed = True

sketch19 = doc.addObject("Sketcher::SketchObject", "Sketch018")
body.addObject(sketch19)
sketch19.AttachmentSupport = (doc.XY_Plane, [""])
sketch19.MapMode = "FlatFace"
sketch19.AttachmentOffset = App.Placement(App.Vector(0, 0, 3), App.Rotation())
sketch19.addGeometry(Part.Circle(App.Vector(-93, 25, 0), App.Vector(0, 0, 1), 1.1), False)
sketch19.addConstraint(Sketcher.Constraint("Diameter", 0, Q("2.1 mm")))
sketch19.addConstraint(Sketcher.Constraint("DistanceX", 0, 3, -1, 1, Q("93 mm")))
sketch19.addConstraint(Sketcher.Constraint("DistanceY", -1, 1, 0, 3, Q("25 mm")))
pocket18 = doc.addObject("PartDesign::Pocket", "Pocket017")
body.addObject(pocket18)
pocket18.Profile = sketch19
pocket18.Type = "UpToFirst"

sketch20 = doc.addObject("Sketcher::SketchObject", "Sketch019")
body.addObject(sketch20)
sketch20.AttachmentSupport = (doc.XY_Plane, [""])
sketch20.MapMode = "FlatFace"
sketch20.AttachmentOffset = App.Placement(App.Vector(0, 0, 3), App.Rotation())
sketch20.addGeometry(Part.LineSegment(App.Vector(-83, 35, 0), App.Vector(-83, 23, 0)), False)
sketch20.addGeometry(Part.LineSegment(App.Vector(-83, 23, 0), App.Vector(-74, 23, 0)), False)
sketch20.addGeometry(Part.LineSegment(App.Vector(-74, 23, 0), App.Vector(-74, 35, 0)), False)
sketch20.addGeometry(Part.LineSegment(App.Vector(-74, 35, 0), App.Vector(-83, 35, 0)), False)
sketch20.addConstraint(Sketcher.Constraint("Coincident", 0, 2, 1, 1))
sketch20.addConstraint(Sketcher.Constraint("Coincident", 1, 2, 2, 1))
sketch20.addConstraint(Sketcher.Constraint("Coincident", 2, 2, 3, 1))
sketch20.addConstraint(Sketcher.Constraint("Coincident", 3, 2, 0, 1))
sketch20.addConstraint(Sketcher.Constraint("Vertical", 0))
sketch20.addConstraint(Sketcher.Constraint("Horizontal", 1))
sketch20.addConstraint(Sketcher.Constraint("Vertical", 2))
sketch20.addConstraint(Sketcher.Constraint("Horizontal", 3))
sketch20.addConstraint(Sketcher.Constraint("DistanceX", 1, 1, 1, 2, Q("9 mm")))
sketch20.addConstraint(Sketcher.Constraint("DistanceY", 0, 2, 0, 1, Q("12 mm")))
sketch20.addConstraint(Sketcher.Constraint("DistanceX", 0, 2, -1, 1, Q("83 mm")))
sketch20.addConstraint(Sketcher.Constraint("DistanceY", -1, 1, 0, 2, Q("23 mm")))
pocket19 = doc.addObject("PartDesign::Pocket", "Pocket018")
body.addObject(pocket19)
pocket19.Profile = sketch20
pocket19.Type = "UpToFirst"
doc.recompute()

chamfer = doc.addObject("PartDesign::Chamfer", "Chamfer")
body.addObject(chamfer)
chamfer.Base = (pocket19, edges_at(pocket19, [
    (-83, 23, 1.5),
    (-83, 35, 1.5),
    (-74, 35, 1.5),
    (-74, 23, 1.5),
]))
chamfer.Size = 1

sketch21 = doc.addObject("Sketcher::SketchObject", "Sketch020")
body.addObject(sketch21)
sketch21.AttachmentSupport = (doc.XY_Plane, [""])
sketch21.MapMode = "FlatFace"
sketch21.AttachmentOffset = App.Placement(App.Vector(0, 0, 3), App.Rotation())
sketch21.addGeometry(Part.LineSegment(App.Vector(-164, 23, 0), App.Vector(-157, 23, 0)), False)
sketch21.addGeometry(Part.LineSegment(App.Vector(-157, 23, 0), App.Vector(-156, 24, 0)), False)
sketch21.addGeometry(Part.LineSegment(App.Vector(-156, 24, 0), App.Vector(-156, 34, 0)), False)
sketch21.addGeometry(Part.LineSegment(App.Vector(-156, 34, 0), App.Vector(-157, 35, 0)), False)
sketch21.addGeometry(Part.LineSegment(App.Vector(-157, 35, 0), App.Vector(-164, 35, 0)), False)
sketch21.addGeometry(Part.LineSegment(App.Vector(-164, 35, 0), App.Vector(-165, 34, 0)), False)
sketch21.addGeometry(Part.LineSegment(App.Vector(-165, 34, 0), App.Vector(-165, 24, 0)), False)
sketch21.addGeometry(Part.LineSegment(App.Vector(-165, 24, 0), App.Vector(-164, 23, 0)), False)
sketch21.addConstraint(Sketcher.Constraint("Coincident", 0, 2, 1, 1))
sketch21.addConstraint(Sketcher.Constraint("Coincident", 1, 2, 2, 1))
sketch21.addConstraint(Sketcher.Constraint("Coincident", 2, 2, 3, 1))
sketch21.addConstraint(Sketcher.Constraint("Coincident", 3, 2, 4, 1))
sketch21.addConstraint(Sketcher.Constraint("Coincident", 4, 2, 5, 1))
sketch21.addConstraint(Sketcher.Constraint("Coincident", 5, 2, 6, 1))
sketch21.addConstraint(Sketcher.Constraint("Coincident", 6, 2, 7, 1))
sketch21.addConstraint(Sketcher.Constraint("Coincident", 7, 2, 0, 1))
sketch21.addConstraint(Sketcher.Constraint("Horizontal", 0))
sketch21.addConstraint(Sketcher.Constraint("Vertical", 2))
sketch21.addConstraint(Sketcher.Constraint("Horizontal", 4))
sketch21.addConstraint(Sketcher.Constraint("Vertical", 6))
sketch21.addConstraint(Sketcher.Constraint("Perpendicular", 1, 3))
sketch21.addConstraint(Sketcher.Constraint("Perpendicular", 3, 5))
sketch21.addConstraint(Sketcher.Constraint("Perpendicular", 5, 7))
sketch21.addConstraint(Sketcher.Constraint("Horizontal", 2, 2, 5, 2))
sketch21.addConstraint(Sketcher.Constraint("Horizontal", 1, 2, 6, 2))
sketch21.addConstraint(Sketcher.Constraint("Vertical", 0, 2, 3, 2))
sketch21.addConstraint(Sketcher.Constraint("Vertical", 4, 2, 7, 2))
sketch21.addConstraint(Sketcher.Constraint("DistanceX", 0, 1, 0, 2, Q("7 mm")))
sketch21.addConstraint(Sketcher.Constraint("DistanceY", 2, 1, 2, 2, Q("10 mm")))
sketch21.addConstraint(Sketcher.Constraint("DistanceX", 0, 2, -1, 1, Q("157 mm")))
sketch21.addConstraint(Sketcher.Constraint("DistanceY", -1, 1, 0, 2, Q("23 mm")))
sketch21.addConstraint(Sketcher.Constraint("DistanceX", 1, 2, -1, 1, Q("156 mm")))
pocket20 = doc.addObject("PartDesign::Pocket", "Pocket019")
body.addObject(pocket20)
pocket20.Profile = sketch21
pocket20.Type = "UpToFirst"

sketch22 = doc.addObject("Sketcher::SketchObject", "Sketch021")
body.addObject(sketch22)
sketch22.AttachmentSupport = (doc.XY_Plane, [""])
sketch22.MapMode = "FlatFace"
sketch22.AttachmentOffset = App.Placement(App.Vector(0, 0, 3), App.Rotation())
sketch22.addGeometry(Part.Circle(App.Vector(-146, 25, 0), App.Vector(0, 0, 1), 1.1), False)
sketch22.addConstraint(Sketcher.Constraint("Diameter", 0, Q("2.1 mm")))
sketch22.addConstraint(Sketcher.Constraint("DistanceX", 0, 3, -1, 1, Q("146 mm")))
sketch22.addConstraint(Sketcher.Constraint("DistanceY", -1, 1, 0, 3, Q("25 mm")))
pocket21 = doc.addObject("PartDesign::Pocket", "Pocket020")
body.addObject(pocket21)
pocket21.Profile = sketch22
pocket21.Type = "UpToFirst"

doc.recompute()
